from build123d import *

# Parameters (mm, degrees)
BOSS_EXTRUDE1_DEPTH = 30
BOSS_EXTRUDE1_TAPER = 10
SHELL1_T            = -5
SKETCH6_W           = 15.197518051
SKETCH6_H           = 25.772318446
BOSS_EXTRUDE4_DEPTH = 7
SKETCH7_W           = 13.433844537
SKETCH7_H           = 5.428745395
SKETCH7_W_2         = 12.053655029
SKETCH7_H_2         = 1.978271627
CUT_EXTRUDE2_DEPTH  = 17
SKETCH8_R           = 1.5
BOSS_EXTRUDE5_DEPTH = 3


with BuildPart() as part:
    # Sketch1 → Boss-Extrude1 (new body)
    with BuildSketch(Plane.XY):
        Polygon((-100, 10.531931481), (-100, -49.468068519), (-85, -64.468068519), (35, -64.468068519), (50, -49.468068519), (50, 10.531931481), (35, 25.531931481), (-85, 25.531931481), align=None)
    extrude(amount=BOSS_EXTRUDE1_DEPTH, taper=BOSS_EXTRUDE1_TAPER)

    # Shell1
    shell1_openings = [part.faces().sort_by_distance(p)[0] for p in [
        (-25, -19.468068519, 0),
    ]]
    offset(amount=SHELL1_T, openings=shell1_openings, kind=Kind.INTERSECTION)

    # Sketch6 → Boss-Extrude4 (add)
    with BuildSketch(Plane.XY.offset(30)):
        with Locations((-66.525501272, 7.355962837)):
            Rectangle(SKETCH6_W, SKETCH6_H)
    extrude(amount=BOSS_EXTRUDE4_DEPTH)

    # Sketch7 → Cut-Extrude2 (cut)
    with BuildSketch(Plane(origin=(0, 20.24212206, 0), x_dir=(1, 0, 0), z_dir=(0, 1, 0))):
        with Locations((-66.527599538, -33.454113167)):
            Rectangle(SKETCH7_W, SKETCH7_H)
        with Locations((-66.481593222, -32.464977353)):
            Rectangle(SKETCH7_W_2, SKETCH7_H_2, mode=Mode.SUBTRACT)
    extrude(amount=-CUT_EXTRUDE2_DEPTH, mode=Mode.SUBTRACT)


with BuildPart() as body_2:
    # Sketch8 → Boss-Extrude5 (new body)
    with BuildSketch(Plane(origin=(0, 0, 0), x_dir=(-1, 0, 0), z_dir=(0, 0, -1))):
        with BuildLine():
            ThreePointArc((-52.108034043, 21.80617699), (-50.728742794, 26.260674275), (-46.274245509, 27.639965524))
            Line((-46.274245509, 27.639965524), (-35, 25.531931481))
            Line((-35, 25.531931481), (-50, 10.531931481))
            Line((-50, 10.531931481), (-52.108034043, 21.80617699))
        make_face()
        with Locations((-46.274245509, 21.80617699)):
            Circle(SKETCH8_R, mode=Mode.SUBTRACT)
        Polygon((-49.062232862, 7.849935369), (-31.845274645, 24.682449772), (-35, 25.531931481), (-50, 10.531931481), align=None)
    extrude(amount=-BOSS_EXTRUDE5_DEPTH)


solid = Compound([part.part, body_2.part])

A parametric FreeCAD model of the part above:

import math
import FreeCAD as App
import Part
import Sketcher

V = App.Vector
Q = App.Units.Quantity


def faces_at(feature, points):
    """Names of the faces that lie closest to the given points."""
    faces = feature.Shape.Faces
    near = lambda p: min(range(len(faces)), key=lambda i: faces[i].distToShape(Part.Vertex(*p))[0])
    return sorted({f"Face{near(p) + 1}" for p in points})


def add_polygon(sketch, points):
    """Adds a closed chain of lines whose ends are joined by coincident constraints."""
    first, n = sketch.GeometryCount, len(points)
    for a, b in zip(points, points[1:] + points[:1]):
        sketch.addGeometry(Part.LineSegment(App.Vector(*a, 0), App.Vector(*b, 0)), False)
    for i in range(n):
        sketch.addConstraint(Sketcher.Constraint("Coincident", first + i, 2, first + (i + 1) % n, 1))

doc = App.newDocument("Part")
body = doc.addObject("PartDesign::Body", "Body")

# Sketch on XY plane
sketch1 = body.newObject("Sketcher::SketchObject", "Sketch")
sketch1.AttachmentSupport = (doc.getObject("XY_Plane"), [""])
sketch1.MapMode = "FlatFace"
add_polygon(sketch1, [(-100, 11), (-100, -49), (-85, -64), (35, -64), (50, -49), (50, 11), (35, 26), (-85, 26)])  # lines 0-7
sketch1.addConstraint([
    Sketcher.Constraint("Vertical", 0),
    Sketcher.Constraint("Horizontal", 2),
    Sketcher.Constraint("Vertical", 4),
    Sketcher.Constraint("Horizontal", 6),
    Sketcher.Constraint("Perpendicular", 1, 3),
    Sketcher.Constraint("Perpendicular", 3, 5),
    Sketcher.Constraint("Perpendicular", 5, 7),
    Sketcher.Constraint("Horizontal", 0, 2, 3, 2),
    Sketcher.Constraint("Horizontal", 4, 2, 7, 2),
    Sketcher.Constraint("Vertical", 2, 2, 5, 2),
    Sketcher.Constraint("Vertical", 1, 2, 6, 2),
    Sketcher.Constraint("DistanceX", 2, 1, 2, 2, Q("120 mm")),
    Sketcher.Constraint("DistanceY", 0, 2, 0, 1, Q("60 mm")),
    Sketcher.Constraint("DistanceX", 0, 2, -1, 1, Q("100 mm")),
    Sketcher.Constraint("DistanceX", 1, 2, -1, 1, Q("85 mm")),
    Sketcher.Constraint("DistanceY", 0, 2, -1, 1, Q("49.468069 mm")),
])
pad1 = body.newObject("PartDesign::Pad", "Pad")
pad1.Profile = sketch1
pad1.Length = 30
pad1.TaperAngle = -10
doc.recompute()

thickness = body.newObject("PartDesign::Thickness", "Thickness")
thickness.Base = (pad1, faces_at(pad1, [(-25, -19.468, 0)]))
thickness.Value = 5
thickness.Reversed = True
thickness.Join = "Intersection"

# Sketch on XY plane
sketch2 = body.newObject("Sketcher::SketchObject", "Sketch001")
sketch2.AttachmentSupport = (doc.getObject("XY_Plane"), [""])
sketch2.MapMode = "FlatFace"
sketch2.AttachmentOffset = App.Placement(V(0, 0, 30), App.Rotation())
add_polygon(sketch2, [(-74, 20), (-74, -6), (-59, -6), (-59, 20)])  # lines 0-3
sketch2.addConstraint([
    Sketcher.Constraint("Vertical", 0),
    Sketcher.Constraint("Horizontal", 1),
    Sketcher.Constraint("Vertical", 2),
    Sketcher.Constraint("Horizontal", 3),
    Sketcher.Constraint("DistanceX", 1, 1, 1, 2, Q("15.197518 mm")),
    Sketcher.Constraint("DistanceY", 0, 2, 0, 1, Q("25.772318 mm")),
    Sketcher.Constraint("DistanceX", 0, 2, -1, 1, Q("74.12426 mm")),
    Sketcher.Constraint("DistanceY", 0, 2, -1, 1, Q("5.530196 mm")),
])
pad2 = body.newObject("PartDesign::Pad", "Pad001")
pad2.Profile = sketch2
pad2.Length = 7

# Sketch on XZ plane
sketch3 = body.newObject("Sketcher::SketchObject", "Sketch002")
sketch3.AttachmentSupport = (doc.getObject("XZ_Plane"), [""])
sketch3.MapMode = "FlatFace"
sketch3.AttachmentOffset = App.Placement(V(0, 0, -20.242122), App.Rotation())
add_polygon(sketch3, [(-73.2, 30.7), (-73.2, 36.2), (-59.8, 36.2), (-59.8, 30.7)])  # lines 0-3
add_polygon(sketch3, [(-60.5, 33.5), (-72.5, 33.5), (-72.5, 31.5), (-60.5, 31.5)])  # lines 4-7
sketch3.addConstraint([
    Sketcher.Constraint("Vertical", 0),
    Sketcher.Constraint("Horizontal", 1),
    Sketcher.Constraint("Vertical", 2),
    Sketcher.Constraint("Horizontal", 3),
    Sketcher.Constraint("Horizontal", 4),
    Sketcher.Constraint("Vertical", 5),
    Sketcher.Constraint("Horizontal", 6),
    Sketcher.Constraint("Vertical", 7),
    Sketcher.Constraint("DistanceY", 5, 2, 5, 1, Q("1.978272 mm")),
    Sketcher.Constraint("DistanceX", 0, 2, 4, 2, Q("0.736101 mm")),
    Sketcher.Constraint("DistanceY", 3, 2, 5, 2, Q("0.736101 mm")),
    Sketcher.Constraint("DistanceX", 1, 1, 1, 2, Q("13.433845 mm")),
    Sketcher.Constraint("DistanceX", 4, 2, 4, 1, Q("12.053655 mm")),
    Sketcher.Constraint("DistanceY", 0, 1, 0, 2, Q("5.428745 mm")),
    Sketcher.Constraint("DistanceX", 0, 2, -1, 1, Q("73.244522 mm")),
    Sketcher.Constraint("DistanceY", -1, 1, 2, 2, Q("30.73974 mm")),
])
pocket1 = body.newObject("PartDesign::Pocket", "Pocket")
pocket1.Profile = sketch3
pocket1.Length = 17
pocket1.Reversed = True
body2 = doc.addObject("PartDesign::Body", "Body001")

# Sketch on XY plane
sketch4 = body2.newObject("Sketcher::SketchObject", "Sketch003")
sketch4.AttachmentSupport = (doc.getObject("XY_Plane001"), [""])
sketch4.MapMode = "FlatFace"
sketch4.addGeometry([
    Part.ArcOfCircle(Part.Circle(V(47.2, 22.7, 0), V(0, 0, 1), 5), math.radians(-11), math.radians(101)),  # 0
    Part.LineSegment(V(52.1, 21.8, 0), V(50, 10.5, 0)),  # 1
    Part.LineSegment(V(50, 10.5, 0), V(49.1, 7.8, 0)),  # 2
    Part.LineSegment(V(49.1, 7.8, 0), V(31.8, 24.7, 0)),  # 3
    Part.LineSegment(V(31.8, 24.7, 0), V(35, 25.5, 0)),  # 4
    Part.LineSegment(V(35, 25.5, 0), V(46.3, 27.6, 0)),  # 5
    Part.Circle(V(46.3, 21.8, 0), V(0, 0, 1), 1.5),  # 6
], False)
sketch4.addConstraint([
    Sketcher.Constraint("Tangent", 0, 1, 1, 1),
    Sketcher.Constraint("Coincident", 1, 2, 2, 1),
    Sketcher.Constraint("Coincident", 2, 2, 3, 1),
    Sketcher.Constraint("Coincident", 3, 2, 4, 1),
    Sketcher.Constraint("Coincident", 4, 2, 5, 1),
    Sketcher.Constraint("Tangent", 5, 2, 0, 2),
    Sketcher.Constraint("Horizontal", 6, 3, 0, 1),
    Sketcher.Constraint("Vertical", 6, 3, 5, 2),
    Sketcher.Constraint("Equal", 1, 5),
    Sketcher.Constraint("Diameter", 6, Q("3 mm")),
    Sketcher.Constraint("Radius", 0, Q("5 mm")),
    Sketcher.Constraint("DistanceX", -1, 1, 1, 2, Q("50 mm")),
    Sketcher.Constraint("DistanceX", -1, 1, 4, 2, Q("35 mm")),
    Sketcher.Constraint("DistanceY", 1, 2, 4, 2, Q("15 mm")),
    Sketcher.Constraint("DistanceX", 2, 2, 0, 1, Q("3.045801 mm")),
    Sketcher.Constraint("Distance", 1, Q("11.46963 mm")),
    Sketcher.Constraint("DistanceY", -1, 1, 0, 3, Q("22.72514 mm")),
    Sketcher.Constraint("DistanceY", -1, 1, 3, 2, Q("24.68245 mm")),
    Sketcher.Constraint("DistanceY", 2, 2, 6, 3, Q("13.956242 mm")),
    Sketcher.Constraint("DistanceX", 3, 2, 6, 3, Q("14.428971 mm")),
])
pad3 = body2.newObject("PartDesign::Pad", "Pad002")
pad3.Profile = sketch4
pad3.Length = 3

doc.recompute()
